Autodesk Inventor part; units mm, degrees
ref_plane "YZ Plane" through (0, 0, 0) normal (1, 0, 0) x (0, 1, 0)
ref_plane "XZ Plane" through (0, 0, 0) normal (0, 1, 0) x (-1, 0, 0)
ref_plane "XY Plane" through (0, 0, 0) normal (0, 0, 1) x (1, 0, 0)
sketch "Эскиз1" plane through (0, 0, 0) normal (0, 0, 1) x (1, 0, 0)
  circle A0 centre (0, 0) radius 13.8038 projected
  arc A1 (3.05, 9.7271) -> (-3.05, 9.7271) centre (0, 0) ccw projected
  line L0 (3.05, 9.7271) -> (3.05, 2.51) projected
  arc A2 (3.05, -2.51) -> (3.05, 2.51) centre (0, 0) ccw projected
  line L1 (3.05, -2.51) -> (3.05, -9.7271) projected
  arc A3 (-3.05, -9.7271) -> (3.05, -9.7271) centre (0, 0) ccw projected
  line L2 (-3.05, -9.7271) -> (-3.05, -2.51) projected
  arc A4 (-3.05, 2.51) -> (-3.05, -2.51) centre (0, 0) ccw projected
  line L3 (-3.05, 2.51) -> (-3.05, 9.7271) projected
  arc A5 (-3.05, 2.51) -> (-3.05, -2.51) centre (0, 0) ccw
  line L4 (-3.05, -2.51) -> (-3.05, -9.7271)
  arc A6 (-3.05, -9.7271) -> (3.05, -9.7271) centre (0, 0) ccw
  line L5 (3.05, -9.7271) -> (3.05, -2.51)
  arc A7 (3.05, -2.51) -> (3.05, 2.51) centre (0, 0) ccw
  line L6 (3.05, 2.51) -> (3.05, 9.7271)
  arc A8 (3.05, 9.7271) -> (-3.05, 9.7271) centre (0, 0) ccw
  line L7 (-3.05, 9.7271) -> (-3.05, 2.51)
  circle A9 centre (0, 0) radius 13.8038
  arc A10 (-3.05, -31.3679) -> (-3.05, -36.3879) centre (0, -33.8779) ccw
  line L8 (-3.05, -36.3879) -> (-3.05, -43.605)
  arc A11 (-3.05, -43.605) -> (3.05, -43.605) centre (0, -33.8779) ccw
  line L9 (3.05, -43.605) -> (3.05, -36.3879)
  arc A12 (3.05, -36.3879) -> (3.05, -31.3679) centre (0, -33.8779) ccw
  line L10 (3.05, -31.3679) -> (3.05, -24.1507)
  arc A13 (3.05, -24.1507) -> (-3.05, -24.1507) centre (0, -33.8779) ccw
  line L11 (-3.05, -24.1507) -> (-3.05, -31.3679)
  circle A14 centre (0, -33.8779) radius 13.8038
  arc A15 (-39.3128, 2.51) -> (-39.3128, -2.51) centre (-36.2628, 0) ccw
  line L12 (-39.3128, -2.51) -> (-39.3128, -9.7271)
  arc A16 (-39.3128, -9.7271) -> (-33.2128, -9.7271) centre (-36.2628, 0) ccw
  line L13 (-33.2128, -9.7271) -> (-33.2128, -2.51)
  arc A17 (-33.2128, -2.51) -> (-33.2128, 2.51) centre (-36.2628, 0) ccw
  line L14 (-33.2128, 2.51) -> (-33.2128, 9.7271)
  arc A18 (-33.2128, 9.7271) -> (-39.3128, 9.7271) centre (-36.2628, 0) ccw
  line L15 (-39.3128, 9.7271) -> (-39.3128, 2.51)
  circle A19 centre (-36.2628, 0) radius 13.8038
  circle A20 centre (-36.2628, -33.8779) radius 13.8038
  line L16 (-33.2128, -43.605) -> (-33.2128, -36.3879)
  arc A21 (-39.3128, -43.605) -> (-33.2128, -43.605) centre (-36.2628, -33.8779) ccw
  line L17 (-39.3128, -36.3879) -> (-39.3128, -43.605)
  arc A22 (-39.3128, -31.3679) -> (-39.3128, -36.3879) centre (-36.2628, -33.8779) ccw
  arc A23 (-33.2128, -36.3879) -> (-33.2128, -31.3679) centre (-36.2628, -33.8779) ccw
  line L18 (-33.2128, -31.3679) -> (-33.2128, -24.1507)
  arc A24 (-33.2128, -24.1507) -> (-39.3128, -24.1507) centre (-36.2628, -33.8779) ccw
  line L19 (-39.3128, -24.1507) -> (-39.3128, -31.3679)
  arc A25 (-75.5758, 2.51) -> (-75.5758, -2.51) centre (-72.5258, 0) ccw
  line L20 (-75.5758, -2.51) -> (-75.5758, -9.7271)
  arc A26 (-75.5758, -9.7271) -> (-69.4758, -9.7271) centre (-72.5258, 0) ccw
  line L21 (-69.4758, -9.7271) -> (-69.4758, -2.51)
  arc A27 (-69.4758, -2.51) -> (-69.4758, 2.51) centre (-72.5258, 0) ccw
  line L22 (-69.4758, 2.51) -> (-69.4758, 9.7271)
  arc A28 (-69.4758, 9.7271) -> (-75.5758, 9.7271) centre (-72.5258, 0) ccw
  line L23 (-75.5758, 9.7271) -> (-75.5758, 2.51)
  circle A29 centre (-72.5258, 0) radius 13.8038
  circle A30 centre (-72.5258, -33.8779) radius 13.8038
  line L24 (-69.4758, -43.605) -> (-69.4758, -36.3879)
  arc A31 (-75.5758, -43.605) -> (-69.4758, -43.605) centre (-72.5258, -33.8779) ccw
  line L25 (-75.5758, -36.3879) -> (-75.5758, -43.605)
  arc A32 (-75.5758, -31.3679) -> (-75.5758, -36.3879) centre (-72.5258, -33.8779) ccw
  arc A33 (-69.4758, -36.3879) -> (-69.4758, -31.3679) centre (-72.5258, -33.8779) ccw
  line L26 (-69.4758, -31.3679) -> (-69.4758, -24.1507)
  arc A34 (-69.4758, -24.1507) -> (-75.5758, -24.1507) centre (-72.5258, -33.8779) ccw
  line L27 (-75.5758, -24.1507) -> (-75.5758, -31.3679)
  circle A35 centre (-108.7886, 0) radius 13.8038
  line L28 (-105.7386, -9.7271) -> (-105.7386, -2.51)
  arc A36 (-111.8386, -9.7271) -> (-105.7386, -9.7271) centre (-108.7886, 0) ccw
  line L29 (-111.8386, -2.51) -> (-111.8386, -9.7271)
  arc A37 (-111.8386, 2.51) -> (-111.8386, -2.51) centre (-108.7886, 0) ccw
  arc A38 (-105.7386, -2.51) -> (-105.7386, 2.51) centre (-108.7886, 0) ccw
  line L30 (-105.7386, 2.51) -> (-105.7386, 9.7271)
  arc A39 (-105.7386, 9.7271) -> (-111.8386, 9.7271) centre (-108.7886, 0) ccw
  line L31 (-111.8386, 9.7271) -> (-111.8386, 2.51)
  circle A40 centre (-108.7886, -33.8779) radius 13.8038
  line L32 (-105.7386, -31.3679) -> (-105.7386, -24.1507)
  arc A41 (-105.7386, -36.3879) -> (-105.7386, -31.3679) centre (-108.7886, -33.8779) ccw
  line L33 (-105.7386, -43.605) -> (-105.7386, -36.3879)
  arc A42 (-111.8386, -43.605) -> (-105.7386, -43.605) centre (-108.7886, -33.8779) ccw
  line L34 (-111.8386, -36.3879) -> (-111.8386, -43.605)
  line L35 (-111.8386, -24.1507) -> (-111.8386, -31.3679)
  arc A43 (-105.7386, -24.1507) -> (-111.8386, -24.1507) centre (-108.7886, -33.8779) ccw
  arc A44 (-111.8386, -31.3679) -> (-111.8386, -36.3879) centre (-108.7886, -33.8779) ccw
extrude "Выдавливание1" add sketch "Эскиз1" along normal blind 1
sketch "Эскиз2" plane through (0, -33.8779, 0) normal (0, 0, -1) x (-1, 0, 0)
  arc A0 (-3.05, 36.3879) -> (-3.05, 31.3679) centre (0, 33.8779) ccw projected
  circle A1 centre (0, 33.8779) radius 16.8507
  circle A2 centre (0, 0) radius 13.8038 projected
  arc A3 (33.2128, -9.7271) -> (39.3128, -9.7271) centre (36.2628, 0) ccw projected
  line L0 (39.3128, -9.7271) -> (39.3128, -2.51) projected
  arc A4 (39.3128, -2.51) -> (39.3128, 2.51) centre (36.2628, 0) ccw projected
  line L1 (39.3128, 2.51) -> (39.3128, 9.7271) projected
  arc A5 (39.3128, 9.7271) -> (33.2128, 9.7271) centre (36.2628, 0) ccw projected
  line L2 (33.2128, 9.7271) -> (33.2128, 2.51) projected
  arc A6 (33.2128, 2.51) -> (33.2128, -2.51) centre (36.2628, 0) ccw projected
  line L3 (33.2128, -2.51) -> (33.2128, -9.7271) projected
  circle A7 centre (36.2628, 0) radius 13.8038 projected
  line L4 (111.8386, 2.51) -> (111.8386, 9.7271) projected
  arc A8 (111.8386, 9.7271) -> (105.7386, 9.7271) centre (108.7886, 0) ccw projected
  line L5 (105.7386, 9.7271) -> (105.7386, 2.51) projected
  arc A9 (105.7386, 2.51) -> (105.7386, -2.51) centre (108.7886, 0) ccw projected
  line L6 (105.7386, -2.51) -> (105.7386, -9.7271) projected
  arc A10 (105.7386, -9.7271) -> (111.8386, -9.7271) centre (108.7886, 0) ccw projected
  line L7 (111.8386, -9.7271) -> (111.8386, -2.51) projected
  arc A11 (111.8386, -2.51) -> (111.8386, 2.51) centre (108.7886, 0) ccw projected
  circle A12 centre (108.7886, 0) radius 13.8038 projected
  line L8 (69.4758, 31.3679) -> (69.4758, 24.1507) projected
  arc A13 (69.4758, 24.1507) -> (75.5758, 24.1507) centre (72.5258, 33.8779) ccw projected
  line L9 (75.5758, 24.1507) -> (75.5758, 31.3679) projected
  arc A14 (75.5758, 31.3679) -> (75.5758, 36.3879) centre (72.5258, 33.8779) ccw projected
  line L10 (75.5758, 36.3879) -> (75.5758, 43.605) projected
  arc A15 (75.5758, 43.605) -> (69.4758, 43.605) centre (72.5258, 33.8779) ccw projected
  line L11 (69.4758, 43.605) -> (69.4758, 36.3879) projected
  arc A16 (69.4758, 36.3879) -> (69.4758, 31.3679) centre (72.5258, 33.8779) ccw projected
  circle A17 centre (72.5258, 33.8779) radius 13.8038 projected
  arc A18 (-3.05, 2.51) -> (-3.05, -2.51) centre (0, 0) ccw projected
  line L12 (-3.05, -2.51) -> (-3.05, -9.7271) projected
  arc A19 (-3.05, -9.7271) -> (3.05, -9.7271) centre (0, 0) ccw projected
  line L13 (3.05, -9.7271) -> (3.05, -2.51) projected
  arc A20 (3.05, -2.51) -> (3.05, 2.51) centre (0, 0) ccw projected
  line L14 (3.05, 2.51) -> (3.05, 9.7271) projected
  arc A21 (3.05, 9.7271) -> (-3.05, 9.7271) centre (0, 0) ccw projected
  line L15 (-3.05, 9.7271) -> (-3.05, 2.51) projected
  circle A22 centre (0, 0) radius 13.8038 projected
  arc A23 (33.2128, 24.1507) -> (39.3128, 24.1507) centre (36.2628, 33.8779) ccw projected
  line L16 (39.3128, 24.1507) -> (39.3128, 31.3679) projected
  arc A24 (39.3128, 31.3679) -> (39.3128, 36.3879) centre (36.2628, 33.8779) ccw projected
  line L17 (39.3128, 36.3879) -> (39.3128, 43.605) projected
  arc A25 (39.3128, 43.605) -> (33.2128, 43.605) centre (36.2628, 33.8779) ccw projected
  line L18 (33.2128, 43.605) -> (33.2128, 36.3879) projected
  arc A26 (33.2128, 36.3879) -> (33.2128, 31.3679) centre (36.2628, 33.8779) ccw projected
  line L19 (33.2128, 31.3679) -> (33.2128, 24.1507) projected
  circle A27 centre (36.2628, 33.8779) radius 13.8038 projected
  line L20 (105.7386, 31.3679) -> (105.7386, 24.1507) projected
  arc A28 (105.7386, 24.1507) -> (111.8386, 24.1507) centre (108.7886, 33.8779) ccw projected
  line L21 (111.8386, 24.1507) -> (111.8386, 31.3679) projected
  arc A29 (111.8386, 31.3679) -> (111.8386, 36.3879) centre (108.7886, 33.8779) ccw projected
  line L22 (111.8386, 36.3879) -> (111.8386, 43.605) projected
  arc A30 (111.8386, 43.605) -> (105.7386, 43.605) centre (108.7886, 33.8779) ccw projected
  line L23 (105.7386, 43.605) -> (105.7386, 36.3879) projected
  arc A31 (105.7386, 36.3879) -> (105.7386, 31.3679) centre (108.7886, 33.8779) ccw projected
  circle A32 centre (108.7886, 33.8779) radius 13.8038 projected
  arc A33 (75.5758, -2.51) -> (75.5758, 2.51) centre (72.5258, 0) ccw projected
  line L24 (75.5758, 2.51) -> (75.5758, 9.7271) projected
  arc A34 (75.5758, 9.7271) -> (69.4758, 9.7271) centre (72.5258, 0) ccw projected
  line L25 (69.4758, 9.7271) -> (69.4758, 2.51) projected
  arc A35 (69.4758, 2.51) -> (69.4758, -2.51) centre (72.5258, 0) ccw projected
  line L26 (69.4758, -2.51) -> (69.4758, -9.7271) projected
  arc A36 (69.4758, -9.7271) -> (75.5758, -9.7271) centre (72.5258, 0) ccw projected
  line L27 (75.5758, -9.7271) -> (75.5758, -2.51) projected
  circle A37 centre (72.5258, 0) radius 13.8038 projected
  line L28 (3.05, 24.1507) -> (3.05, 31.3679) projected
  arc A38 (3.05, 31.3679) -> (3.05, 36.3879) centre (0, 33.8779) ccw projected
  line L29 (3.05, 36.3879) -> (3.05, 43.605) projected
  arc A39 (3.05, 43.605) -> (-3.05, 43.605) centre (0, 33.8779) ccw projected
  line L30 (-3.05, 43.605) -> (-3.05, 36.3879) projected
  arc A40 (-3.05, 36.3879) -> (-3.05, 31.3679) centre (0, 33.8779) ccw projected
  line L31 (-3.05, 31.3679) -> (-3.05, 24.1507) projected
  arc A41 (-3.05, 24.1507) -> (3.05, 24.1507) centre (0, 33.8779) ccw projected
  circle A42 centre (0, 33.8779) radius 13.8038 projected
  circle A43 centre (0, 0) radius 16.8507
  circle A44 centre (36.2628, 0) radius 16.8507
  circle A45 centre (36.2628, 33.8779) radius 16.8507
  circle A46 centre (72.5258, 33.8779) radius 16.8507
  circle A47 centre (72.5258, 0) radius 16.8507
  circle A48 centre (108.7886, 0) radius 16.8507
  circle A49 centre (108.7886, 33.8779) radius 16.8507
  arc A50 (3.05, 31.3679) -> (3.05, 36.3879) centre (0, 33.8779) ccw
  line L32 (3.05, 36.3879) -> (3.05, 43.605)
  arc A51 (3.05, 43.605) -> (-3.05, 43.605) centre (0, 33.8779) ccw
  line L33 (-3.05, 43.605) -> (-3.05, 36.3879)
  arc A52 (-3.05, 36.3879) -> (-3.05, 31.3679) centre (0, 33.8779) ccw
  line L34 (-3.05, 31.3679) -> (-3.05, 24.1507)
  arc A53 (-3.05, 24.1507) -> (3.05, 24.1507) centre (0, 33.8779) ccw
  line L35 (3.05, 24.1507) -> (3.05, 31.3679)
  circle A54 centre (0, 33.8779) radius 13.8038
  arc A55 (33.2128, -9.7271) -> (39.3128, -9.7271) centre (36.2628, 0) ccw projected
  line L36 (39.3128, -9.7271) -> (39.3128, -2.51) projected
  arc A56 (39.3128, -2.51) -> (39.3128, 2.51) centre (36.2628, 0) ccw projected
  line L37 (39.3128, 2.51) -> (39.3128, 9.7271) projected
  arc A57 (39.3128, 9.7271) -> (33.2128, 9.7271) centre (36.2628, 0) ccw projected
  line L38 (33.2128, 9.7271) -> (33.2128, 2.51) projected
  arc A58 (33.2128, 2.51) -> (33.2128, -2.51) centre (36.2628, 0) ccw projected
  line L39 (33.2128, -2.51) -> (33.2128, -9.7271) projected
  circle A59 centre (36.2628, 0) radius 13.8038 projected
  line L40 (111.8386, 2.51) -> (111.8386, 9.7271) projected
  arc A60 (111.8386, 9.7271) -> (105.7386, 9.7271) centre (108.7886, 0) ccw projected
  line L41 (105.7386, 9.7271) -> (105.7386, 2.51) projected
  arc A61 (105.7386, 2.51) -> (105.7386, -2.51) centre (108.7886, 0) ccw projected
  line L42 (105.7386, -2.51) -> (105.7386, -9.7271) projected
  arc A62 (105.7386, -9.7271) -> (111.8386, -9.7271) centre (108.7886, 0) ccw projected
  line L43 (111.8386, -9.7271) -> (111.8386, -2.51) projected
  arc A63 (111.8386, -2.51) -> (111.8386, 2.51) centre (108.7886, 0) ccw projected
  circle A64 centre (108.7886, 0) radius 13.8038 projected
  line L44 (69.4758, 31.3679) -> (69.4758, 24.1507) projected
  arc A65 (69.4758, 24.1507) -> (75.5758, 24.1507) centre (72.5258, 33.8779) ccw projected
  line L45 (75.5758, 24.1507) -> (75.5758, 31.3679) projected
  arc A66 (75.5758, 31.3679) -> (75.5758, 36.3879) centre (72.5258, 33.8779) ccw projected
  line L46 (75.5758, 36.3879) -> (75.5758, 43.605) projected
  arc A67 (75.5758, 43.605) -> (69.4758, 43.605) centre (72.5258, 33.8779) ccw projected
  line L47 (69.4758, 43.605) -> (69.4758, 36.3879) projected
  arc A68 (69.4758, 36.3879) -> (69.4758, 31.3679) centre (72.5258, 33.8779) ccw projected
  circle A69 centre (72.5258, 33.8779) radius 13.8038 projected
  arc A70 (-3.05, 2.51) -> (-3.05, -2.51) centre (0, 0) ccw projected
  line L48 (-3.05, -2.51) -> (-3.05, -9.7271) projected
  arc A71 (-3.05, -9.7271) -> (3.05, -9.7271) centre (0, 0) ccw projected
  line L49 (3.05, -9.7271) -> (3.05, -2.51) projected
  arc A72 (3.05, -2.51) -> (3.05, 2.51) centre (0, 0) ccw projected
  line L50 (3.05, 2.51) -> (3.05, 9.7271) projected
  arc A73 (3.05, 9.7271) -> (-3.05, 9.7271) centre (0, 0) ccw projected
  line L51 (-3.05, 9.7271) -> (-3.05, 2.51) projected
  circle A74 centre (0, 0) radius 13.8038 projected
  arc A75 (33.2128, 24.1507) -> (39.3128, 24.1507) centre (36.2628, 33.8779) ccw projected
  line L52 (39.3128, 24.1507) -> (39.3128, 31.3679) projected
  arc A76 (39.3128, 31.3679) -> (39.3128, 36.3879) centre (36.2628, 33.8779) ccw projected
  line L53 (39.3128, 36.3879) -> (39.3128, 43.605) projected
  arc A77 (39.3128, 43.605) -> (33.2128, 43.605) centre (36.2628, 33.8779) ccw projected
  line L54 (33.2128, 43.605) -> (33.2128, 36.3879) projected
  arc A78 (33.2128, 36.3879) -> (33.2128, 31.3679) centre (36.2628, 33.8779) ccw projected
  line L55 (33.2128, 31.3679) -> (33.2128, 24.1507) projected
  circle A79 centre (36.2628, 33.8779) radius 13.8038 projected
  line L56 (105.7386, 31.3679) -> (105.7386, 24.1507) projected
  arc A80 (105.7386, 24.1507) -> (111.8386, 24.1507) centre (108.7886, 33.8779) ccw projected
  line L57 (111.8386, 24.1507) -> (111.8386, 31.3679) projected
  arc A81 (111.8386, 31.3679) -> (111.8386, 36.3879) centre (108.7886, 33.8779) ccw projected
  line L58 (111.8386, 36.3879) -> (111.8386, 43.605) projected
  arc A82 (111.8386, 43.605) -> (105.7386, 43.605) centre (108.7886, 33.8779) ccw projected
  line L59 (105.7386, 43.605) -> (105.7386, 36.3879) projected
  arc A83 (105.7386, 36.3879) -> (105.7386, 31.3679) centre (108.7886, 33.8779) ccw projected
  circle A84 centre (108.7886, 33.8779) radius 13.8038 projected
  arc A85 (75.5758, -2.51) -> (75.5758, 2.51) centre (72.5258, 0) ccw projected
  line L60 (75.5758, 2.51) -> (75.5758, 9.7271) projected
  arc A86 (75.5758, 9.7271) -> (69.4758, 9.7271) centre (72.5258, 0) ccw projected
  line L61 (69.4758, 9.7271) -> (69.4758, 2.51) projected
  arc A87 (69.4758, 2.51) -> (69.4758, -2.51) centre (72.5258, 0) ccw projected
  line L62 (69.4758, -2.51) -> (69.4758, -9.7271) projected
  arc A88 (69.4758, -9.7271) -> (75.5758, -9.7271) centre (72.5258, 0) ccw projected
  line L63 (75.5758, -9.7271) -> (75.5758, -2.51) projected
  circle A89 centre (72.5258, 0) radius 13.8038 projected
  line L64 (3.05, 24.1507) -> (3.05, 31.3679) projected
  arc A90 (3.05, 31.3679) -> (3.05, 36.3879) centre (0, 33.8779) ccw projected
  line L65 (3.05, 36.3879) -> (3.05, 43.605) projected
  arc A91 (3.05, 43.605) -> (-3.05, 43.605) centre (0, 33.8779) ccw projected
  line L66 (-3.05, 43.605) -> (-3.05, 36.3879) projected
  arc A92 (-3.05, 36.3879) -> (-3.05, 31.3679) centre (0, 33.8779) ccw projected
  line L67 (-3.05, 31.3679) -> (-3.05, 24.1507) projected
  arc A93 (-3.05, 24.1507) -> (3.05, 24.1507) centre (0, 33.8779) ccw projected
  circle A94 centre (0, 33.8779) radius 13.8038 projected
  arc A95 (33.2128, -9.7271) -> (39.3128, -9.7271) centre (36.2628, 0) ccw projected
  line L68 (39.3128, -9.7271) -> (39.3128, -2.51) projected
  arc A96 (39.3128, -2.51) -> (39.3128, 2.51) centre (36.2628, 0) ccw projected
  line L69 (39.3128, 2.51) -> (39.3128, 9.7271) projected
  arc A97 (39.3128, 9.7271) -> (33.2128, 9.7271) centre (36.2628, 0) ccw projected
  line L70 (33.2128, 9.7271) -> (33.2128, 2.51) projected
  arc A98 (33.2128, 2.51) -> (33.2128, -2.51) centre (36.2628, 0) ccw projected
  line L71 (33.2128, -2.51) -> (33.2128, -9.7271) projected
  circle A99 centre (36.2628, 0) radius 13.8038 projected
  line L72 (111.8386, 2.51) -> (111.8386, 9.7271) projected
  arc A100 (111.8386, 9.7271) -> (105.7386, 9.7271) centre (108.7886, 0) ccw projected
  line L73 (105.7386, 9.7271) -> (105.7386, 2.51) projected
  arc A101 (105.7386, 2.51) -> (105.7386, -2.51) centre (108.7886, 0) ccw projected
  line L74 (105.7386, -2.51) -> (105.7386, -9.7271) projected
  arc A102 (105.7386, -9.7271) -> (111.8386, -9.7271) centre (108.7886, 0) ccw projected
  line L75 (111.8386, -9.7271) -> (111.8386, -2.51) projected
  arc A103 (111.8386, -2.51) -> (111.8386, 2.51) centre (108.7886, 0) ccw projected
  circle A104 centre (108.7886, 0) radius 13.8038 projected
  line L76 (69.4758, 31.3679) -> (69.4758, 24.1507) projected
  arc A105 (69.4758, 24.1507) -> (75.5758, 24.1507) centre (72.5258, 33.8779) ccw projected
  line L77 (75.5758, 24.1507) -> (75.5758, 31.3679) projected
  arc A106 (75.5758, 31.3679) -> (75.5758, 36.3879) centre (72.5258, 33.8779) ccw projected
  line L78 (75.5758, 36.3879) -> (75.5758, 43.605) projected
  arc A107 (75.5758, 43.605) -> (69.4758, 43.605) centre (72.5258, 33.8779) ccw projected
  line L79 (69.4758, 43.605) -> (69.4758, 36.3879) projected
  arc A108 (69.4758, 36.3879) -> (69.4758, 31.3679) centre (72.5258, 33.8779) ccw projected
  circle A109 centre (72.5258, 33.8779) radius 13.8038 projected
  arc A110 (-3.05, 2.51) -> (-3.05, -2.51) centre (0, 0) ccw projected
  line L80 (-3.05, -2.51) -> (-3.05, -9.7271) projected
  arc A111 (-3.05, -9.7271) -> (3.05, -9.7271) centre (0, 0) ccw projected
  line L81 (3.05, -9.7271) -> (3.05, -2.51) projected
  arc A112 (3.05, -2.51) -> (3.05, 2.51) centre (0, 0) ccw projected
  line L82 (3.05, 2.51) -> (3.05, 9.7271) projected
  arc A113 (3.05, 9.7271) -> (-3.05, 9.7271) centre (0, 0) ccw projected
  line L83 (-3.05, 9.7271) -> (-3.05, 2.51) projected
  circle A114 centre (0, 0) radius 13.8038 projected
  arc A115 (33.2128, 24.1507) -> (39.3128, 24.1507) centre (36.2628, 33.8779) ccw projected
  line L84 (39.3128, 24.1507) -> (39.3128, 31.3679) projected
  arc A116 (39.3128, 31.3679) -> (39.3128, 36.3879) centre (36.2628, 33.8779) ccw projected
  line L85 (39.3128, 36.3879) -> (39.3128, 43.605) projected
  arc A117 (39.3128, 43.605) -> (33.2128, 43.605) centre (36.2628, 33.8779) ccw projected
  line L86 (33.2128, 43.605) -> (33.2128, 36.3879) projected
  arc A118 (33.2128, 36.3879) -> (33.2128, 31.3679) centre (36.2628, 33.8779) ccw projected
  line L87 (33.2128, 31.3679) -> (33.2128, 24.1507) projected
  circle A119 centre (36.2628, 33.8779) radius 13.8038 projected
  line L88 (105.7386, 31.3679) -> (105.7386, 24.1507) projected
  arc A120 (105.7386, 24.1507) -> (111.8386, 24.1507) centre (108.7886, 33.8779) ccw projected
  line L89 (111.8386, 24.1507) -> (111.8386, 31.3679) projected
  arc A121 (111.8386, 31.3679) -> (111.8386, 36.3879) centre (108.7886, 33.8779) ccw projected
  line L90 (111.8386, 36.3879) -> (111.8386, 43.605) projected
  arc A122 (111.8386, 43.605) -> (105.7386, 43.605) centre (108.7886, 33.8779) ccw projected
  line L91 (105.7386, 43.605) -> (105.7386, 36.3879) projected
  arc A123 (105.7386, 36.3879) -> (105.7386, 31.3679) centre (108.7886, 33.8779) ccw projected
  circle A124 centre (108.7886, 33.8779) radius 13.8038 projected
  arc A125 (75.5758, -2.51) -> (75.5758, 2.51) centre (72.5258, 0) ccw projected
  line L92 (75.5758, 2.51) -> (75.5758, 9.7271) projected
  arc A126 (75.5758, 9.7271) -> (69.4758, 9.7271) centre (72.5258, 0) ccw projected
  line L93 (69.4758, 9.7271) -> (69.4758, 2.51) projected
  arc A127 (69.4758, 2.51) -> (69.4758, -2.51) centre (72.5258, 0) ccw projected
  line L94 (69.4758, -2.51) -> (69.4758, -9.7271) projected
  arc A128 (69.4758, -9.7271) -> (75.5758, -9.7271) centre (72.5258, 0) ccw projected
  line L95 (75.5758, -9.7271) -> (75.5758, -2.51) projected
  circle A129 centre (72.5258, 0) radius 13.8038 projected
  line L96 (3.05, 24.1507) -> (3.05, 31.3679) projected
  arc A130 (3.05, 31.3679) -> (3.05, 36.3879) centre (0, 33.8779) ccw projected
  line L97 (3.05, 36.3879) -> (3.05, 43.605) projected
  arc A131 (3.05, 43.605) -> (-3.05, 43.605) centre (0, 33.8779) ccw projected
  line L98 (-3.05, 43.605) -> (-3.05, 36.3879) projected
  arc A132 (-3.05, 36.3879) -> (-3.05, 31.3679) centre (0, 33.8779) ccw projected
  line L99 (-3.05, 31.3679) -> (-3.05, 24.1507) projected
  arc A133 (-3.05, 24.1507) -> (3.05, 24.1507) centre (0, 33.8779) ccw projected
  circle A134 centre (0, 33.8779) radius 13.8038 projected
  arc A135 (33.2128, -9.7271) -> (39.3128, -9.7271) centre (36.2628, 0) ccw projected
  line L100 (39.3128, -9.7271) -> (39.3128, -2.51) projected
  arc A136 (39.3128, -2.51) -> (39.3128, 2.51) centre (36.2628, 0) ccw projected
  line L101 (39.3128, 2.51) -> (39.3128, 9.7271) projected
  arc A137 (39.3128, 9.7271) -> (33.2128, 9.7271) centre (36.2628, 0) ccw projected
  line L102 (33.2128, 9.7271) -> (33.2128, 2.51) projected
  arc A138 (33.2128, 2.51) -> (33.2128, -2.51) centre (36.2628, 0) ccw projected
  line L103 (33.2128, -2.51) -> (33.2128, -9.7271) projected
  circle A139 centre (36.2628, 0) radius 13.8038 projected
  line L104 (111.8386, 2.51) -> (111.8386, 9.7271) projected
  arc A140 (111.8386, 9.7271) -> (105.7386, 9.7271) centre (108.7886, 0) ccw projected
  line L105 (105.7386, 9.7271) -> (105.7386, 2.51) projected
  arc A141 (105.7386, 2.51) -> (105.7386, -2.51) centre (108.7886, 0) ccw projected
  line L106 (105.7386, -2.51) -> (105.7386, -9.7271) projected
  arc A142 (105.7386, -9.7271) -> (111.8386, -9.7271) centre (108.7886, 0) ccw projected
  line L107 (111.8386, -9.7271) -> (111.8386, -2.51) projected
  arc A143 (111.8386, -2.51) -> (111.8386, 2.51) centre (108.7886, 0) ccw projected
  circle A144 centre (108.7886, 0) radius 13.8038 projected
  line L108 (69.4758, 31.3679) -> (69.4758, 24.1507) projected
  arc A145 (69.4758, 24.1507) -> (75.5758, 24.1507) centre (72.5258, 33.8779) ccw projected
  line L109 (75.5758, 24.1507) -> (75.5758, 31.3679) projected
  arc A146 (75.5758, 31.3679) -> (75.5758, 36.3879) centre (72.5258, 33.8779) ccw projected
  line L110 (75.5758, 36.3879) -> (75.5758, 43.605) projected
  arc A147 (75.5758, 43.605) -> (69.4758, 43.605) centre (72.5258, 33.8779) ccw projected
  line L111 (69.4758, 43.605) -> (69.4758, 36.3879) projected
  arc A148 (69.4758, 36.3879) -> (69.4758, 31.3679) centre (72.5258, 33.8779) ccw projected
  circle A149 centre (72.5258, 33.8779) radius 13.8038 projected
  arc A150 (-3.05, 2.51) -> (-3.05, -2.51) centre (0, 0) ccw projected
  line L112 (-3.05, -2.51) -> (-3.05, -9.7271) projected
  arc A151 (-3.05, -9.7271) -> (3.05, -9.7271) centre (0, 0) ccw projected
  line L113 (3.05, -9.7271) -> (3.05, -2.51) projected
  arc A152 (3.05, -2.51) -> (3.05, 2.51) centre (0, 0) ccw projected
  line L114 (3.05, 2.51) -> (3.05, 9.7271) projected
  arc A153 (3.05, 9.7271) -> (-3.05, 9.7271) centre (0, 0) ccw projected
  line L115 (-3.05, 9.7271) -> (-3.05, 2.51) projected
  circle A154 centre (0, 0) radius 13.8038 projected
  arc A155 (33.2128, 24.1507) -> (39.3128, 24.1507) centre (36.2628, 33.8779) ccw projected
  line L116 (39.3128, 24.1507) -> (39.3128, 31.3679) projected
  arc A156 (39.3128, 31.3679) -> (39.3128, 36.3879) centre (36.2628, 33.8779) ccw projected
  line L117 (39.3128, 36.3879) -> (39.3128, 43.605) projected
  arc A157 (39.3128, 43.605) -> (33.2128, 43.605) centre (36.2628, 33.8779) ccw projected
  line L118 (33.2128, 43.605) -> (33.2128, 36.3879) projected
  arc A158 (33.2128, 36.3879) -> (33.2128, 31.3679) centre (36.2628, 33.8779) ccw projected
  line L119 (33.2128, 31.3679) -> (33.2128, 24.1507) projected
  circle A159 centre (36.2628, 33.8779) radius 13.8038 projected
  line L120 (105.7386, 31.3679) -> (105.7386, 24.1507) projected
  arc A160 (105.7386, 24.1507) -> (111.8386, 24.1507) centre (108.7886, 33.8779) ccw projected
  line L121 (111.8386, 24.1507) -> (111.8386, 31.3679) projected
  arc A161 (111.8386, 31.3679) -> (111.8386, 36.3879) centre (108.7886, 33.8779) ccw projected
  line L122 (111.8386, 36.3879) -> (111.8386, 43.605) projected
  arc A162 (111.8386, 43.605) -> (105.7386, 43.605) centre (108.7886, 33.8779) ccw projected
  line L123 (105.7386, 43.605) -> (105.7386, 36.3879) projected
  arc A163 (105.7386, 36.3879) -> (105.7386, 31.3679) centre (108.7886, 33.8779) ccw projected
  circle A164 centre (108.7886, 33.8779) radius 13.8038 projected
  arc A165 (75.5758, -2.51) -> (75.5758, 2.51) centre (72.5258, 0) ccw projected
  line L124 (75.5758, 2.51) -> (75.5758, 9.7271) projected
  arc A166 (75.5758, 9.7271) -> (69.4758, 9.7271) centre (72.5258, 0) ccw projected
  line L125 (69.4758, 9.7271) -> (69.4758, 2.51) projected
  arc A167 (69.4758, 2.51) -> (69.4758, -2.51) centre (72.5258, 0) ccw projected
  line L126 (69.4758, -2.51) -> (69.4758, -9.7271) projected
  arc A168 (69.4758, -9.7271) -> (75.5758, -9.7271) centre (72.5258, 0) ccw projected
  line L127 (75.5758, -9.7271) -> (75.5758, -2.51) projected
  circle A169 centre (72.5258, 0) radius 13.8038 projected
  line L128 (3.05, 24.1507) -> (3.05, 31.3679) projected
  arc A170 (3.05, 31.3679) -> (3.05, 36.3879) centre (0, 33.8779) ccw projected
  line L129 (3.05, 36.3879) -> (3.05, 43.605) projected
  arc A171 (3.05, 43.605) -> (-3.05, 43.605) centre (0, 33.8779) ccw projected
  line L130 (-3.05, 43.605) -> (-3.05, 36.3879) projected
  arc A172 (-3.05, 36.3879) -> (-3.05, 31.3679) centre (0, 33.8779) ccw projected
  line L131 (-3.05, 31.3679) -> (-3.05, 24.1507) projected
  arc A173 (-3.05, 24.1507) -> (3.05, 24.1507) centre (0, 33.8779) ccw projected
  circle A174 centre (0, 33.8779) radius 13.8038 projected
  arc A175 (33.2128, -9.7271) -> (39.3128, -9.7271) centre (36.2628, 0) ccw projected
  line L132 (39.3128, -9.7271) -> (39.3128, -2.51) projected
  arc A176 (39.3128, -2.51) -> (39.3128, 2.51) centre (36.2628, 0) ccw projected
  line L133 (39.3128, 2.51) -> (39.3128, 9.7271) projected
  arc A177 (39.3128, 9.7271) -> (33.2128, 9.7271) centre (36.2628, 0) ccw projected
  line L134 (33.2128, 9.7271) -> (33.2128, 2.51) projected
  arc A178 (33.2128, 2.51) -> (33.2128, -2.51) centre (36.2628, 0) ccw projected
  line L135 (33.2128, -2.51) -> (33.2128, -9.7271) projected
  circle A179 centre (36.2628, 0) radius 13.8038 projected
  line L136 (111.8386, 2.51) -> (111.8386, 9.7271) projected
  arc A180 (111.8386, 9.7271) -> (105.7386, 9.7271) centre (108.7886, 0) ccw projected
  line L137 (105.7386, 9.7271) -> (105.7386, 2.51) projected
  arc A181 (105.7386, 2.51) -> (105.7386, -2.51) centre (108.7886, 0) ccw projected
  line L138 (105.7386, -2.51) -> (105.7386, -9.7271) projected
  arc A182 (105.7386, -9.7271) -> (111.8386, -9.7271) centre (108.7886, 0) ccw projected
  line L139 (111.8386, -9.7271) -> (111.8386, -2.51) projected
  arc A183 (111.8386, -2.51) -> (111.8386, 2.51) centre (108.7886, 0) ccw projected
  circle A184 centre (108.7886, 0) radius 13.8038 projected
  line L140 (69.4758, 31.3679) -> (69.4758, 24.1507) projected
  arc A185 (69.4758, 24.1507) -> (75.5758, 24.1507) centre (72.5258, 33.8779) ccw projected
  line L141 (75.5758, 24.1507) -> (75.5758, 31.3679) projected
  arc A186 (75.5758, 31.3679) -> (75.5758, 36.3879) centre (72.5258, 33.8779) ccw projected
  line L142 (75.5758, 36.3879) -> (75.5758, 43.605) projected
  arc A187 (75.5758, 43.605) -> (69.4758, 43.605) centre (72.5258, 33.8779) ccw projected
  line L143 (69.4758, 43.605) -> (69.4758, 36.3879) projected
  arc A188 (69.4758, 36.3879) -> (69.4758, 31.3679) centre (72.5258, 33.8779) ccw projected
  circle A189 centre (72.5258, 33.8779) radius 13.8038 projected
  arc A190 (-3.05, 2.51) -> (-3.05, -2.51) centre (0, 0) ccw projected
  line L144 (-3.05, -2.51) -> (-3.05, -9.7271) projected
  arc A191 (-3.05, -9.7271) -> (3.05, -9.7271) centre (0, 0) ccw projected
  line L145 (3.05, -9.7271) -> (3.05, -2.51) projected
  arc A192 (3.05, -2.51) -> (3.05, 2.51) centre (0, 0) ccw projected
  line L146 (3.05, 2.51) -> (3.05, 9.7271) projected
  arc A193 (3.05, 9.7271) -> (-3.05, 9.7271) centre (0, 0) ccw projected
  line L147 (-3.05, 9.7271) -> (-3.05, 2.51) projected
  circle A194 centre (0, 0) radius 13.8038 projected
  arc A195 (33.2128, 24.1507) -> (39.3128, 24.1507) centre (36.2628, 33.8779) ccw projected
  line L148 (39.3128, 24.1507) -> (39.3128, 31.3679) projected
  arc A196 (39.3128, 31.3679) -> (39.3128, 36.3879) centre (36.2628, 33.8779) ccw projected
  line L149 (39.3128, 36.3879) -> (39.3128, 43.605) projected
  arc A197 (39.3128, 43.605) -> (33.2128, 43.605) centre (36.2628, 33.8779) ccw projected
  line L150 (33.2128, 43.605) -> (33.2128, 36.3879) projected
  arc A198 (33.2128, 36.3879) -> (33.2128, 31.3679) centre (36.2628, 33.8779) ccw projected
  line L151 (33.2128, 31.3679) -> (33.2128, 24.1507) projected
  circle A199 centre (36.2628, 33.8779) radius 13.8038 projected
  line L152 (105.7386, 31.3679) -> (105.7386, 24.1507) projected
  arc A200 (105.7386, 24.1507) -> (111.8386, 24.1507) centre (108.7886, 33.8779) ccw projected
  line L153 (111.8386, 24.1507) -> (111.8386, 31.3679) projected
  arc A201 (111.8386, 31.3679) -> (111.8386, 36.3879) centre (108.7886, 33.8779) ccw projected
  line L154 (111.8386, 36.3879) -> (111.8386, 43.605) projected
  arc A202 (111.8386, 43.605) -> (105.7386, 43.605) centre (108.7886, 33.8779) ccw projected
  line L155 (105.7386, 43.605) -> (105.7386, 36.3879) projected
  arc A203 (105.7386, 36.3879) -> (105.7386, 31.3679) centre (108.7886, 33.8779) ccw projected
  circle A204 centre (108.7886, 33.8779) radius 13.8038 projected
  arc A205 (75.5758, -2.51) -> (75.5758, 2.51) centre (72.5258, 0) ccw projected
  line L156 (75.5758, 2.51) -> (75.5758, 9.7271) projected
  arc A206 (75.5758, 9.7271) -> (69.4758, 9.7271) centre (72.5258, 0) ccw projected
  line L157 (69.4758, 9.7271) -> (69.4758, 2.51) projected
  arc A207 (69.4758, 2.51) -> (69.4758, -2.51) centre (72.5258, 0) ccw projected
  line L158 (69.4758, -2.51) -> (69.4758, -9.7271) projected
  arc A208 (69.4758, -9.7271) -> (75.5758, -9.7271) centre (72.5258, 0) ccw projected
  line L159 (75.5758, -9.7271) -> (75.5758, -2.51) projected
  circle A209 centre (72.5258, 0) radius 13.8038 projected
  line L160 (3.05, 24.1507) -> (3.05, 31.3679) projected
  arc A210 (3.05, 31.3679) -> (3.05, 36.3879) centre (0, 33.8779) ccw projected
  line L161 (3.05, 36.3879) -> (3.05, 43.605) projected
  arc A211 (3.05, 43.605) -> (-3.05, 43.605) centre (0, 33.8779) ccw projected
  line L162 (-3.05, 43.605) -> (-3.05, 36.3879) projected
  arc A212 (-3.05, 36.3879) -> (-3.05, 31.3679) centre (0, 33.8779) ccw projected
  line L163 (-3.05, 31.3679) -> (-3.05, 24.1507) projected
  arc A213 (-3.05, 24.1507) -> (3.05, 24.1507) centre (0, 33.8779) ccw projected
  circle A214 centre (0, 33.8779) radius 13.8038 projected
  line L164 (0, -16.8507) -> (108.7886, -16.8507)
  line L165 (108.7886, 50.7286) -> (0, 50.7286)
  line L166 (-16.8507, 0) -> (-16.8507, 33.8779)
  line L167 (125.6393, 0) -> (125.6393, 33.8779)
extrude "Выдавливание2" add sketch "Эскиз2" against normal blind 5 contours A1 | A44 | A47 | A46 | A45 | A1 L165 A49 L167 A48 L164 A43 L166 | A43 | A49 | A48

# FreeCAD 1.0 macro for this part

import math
import FreeCAD as App
import Part
import Sketcher
Q = App.Units.Quantity

doc = App.newDocument("Part")
params = doc.addObject("Spreadsheet::Sheet", "Params")
for row, (alias, value) in enumerate([
    ("sketch1_radius", "3.95 mm"),
    ("pad1_length", "1 mm"),
    ("pad2_length", "5 mm"),
], start=1):
    params.set(f"A{row}", alias)
    params.set(f"B{row}", "=" + value)
    params.setAlias(f"B{row}", alias)

body = doc.addObject("PartDesign::Body", "Body")
body.AllowCompound = True

# Sketch on XY plane
sketch1 = doc.addObject("Sketcher::SketchObject", "Sketch")
body.addObject(sketch1)
sketch1.AttachmentSupport = (doc.XY_Plane, [""])
sketch1.MapMode = "FlatFace"
sketch1.addGeometry([
    Part.Circle(App.Vector(0, 0, 0), App.Vector(0, 0, 1), 13.8038),  # 0
    Part.ArcOfCircle(Part.Circle(App.Vector(0, 0, 0), App.Vector(0, 0, 1), 10.194066), math.radians(72.59082), math.radians(107.40918)),  # 1
    Part.LineSegment(App.Vector(3.05, 9.7271, 0), App.Vector(3.05, 2.51, 0)),  # 2
    Part.ArcOfCircle(Part.Circle(App.Vector(0, 0, 0), App.Vector(0, 0, 1), 3.950013), math.radians(-39.4527), math.radians(39.4527)),  # 3
    Part.LineSegment(App.Vector(3.05, -2.51, 0), App.Vector(3.05, -9.7271, 0)),  # 4
    Part.ArcOfCircle(Part.Circle(App.Vector(0, 0, 0), App.Vector(0, 0, 1), 10.194066), math.radians(-107.40918), math.radians(-72.59082)),  # 5
    Part.LineSegment(App.Vector(-3.05, -9.7271, 0), App.Vector(-3.05, -2.51, 0)),  # 6
    Part.ArcOfCircle(Part.Circle(App.Vector(0, 0, 0), App.Vector(0, 0, 1), 3.950013), math.radians(140.5473), math.radians(219.4527)),  # 7
    Part.LineSegment(App.Vector(-3.05, 2.51, 0), App.Vector(-3.05, 9.7271, 0)),  # 8
    Part.Circle(App.Vector(0, -33.8779, 0), App.Vector(0, 0, 1), 13.8038),  # 9
    Part.ArcOfCircle(Part.Circle(App.Vector(0, -33.8779, 0), App.Vector(0, 0, 1), 3.950013), math.radians(140.5473), math.radians(219.4527)),  # 10
    Part.LineSegment(App.Vector(-3.05, -31.3679, 0), App.Vector(-3.05, -24.1507, 0)),  # 11
    Part.ArcOfCircle(Part.Circle(App.Vector(0, -33.8779, 0), App.Vector(0, 0, 1), 10.194161), math.radians(72.590988), math.radians(107.409012)),  # 12
    Part.LineSegment(App.Vector(3.05, -24.1507, 0), App.Vector(3.05, -31.3679, 0)),  # 13
    Part.ArcOfCircle(Part.Circle(App.Vector(0, -33.8779, 0), App.Vector(0, 0, 1), 3.950013), math.radians(-39.4527), math.radians(39.4527)),  # 14
    Part.LineSegment(App.Vector(3.05, -36.3879, 0), App.Vector(3.05, -43.605, 0)),  # 15
    Part.ArcOfCircle(Part.Circle(App.Vector(0, -33.8779, 0), App.Vector(0, 0, 1), 10.194066), math.radians(-107.40918), math.radians(-72.59082)),  # 16
    Part.LineSegment(App.Vector(-3.05, -43.605, 0), App.Vector(-3.05, -36.3879, 0)),  # 17
    Part.Circle(App.Vector(-36.2628, 0, 0), App.Vector(0, 0, 1), 13.8038),  # 18
    Part.ArcOfCircle(Part.Circle(App.Vector(-36.2628, 0, 0), App.Vector(0, 0, 1), 3.950013), math.radians(140.5473), math.radians(219.4527)),  # 19
    Part.LineSegment(App.Vector(-39.3128, 2.51, 0), App.Vector(-39.3128, 9.7271, 0)),  # 20
    Part.ArcOfCircle(Part.Circle(App.Vector(-36.2628, 0, 0), App.Vector(0, 0, 1), 10.194066), math.radians(72.59082), math.radians(107.40918)),  # 21
    Part.LineSegment(App.Vector(-33.2128, 9.7271, 0), App.Vector(-33.2128, 2.51, 0)),  # 22
    Part.ArcOfCircle(Part.Circle(App.Vector(-36.2628, 0, 0), App.Vector(0, 0, 1), 3.950013), math.radians(-39.4527), math.radians(39.4527)),  # 23
    Part.LineSegment(App.Vector(-33.2128, -2.51, 0), App.Vector(-33.2128, -9.7271, 0)),  # 24
    Part.ArcOfCircle(Part.Circle(App.Vector(-36.2628, 0, 0), App.Vector(0, 0, 1), 10.194066), math.radians(-107.40918), math.radians(-72.59082)),  # 25
    Part.LineSegment(App.Vector(-39.3128, -9.7271, 0), App.Vector(-39.3128, -2.51, 0)),  # 26
    Part.Circle(App.Vector(-36.2628, -33.8779, 0), App.Vector(0, 0, 1), 13.8038),  # 27
    Part.LineSegment(App.Vector(-33.2128, -36.3879, 0), App.Vector(-33.2128, -43.605, 0)),  # 28
    Part.ArcOfCircle(Part.Circle(App.Vector(-36.2628, -33.8779, 0), App.Vector(0, 0, 1), 10.194066), math.radians(-107.40918), math.radians(-72.59082)),  # 29
    Part.LineSegment(App.Vector(-39.3128, -43.605, 0), App.Vector(-39.3128, -36.3879, 0)),  # 30
    Part.ArcOfCircle(Part.Circle(App.Vector(-36.2628, -33.8779, 0), App.Vector(0, 0, 1), 3.950013), math.radians(140.5473), math.radians(219.4527)),  # 31
    Part.LineSegment(App.Vector(-39.3128, -31.3679, 0), App.Vector(-39.3128, -24.1507, 0)),  # 32
    Part.ArcOfCircle(Part.Circle(App.Vector(-36.2628, -33.8779, 0), App.Vector(0, 0, 1), 10.194161), math.radians(72.590988), math.radians(107.409012)),  # 33
    Part.LineSegment(App.Vector(-33.2128, -24.1507, 0), App.Vector(-33.2128, -31.3679, 0)),  # 34
    Part.ArcOfCircle(Part.Circle(App.Vector(-36.2628, -33.8779, 0), App.Vector(0, 0, 1), 3.950013), math.radians(-39.4527), math.radians(39.4527)),  # 35
    Part.Circle(App.Vector(-72.5258, 0, 0), App.Vector(0, 0, 1), 13.8038),  # 36
    Part.ArcOfCircle(Part.Circle(App.Vector(-72.5258, 0, 0), App.Vector(0, 0, 1), 3.950013), math.radians(140.5473), math.radians(219.4527)),  # 37
    Part.LineSegment(App.Vector(-75.5758, 2.51, 0), App.Vector(-75.5758, 9.7271, 0)),  # 38
    Part.ArcOfCircle(Part.Circle(App.Vector(-72.5258, 0, 0), App.Vector(0, 0, 1), 10.194066), math.radians(72.59082), math.radians(107.40918)),  # 39
    Part.LineSegment(App.Vector(-69.4758, 9.7271, 0), App.Vector(-69.4758, 2.51, 0)),  # 40
    Part.ArcOfCircle(Part.Circle(App.Vector(-72.5258, 0, 0), App.Vector(0, 0, 1), 3.950013), math.radians(-39.4527), math.radians(39.4527)),  # 41
    Part.LineSegment(App.Vector(-69.4758, -2.51, 0), App.Vector(-69.4758, -9.7271, 0)),  # 42
    Part.ArcOfCircle(Part.Circle(App.Vector(-72.5258, 0, 0), App.Vector(0, 0, 1), 10.194066), math.radians(-107.40918), math.radians(-72.59082)),  # 43
    Part.LineSegment(App.Vector(-75.5758, -9.7271, 0), App.Vector(-75.5758, -2.51, 0)),  # 44
    Part.Circle(App.Vector(-72.5258, -33.8779, 0), App.Vector(0, 0, 1), 13.8038),  # 45
    Part.LineSegment(App.Vector(-69.4758, -36.3879, 0), App.Vector(-69.4758, -43.605, 0)),  # 46
    Part.ArcOfCircle(Part.Circle(App.Vector(-72.5258, -33.8779, 0), App.Vector(0, 0, 1), 10.194066), math.radians(-107.40918), math.radians(-72.59082)),  # 47
    Part.LineSegment(App.Vector(-75.5758, -43.605, 0), App.Vector(-75.5758, -36.3879, 0)),  # 48
    Part.ArcOfCircle(Part.Circle(App.Vector(-72.5258, -33.8779, 0), App.Vector(0, 0, 1), 3.950013), math.radians(140.5473), math.radians(219.4527)),  # 49
    Part.LineSegment(App.Vector(-75.5758, -31.3679, 0), App.Vector(-75.5758, -24.1507, 0)),  # 50
    Part.ArcOfCircle(Part.Circle(App.Vector(-72.5258, -33.8779, 0), App.Vector(0, 0, 1), 10.194161), math.radians(72.590988), math.radians(107.409012)),  # 51
    Part.LineSegment(App.Vector(-69.4758, -24.1507, 0), App.Vector(-69.4758, -31.3679, 0)),  # 52
    Part.ArcOfCircle(Part.Circle(App.Vector(-72.5258, -33.8779, 0), App.Vector(0, 0, 1), 3.950013), math.radians(-39.4527), math.radians(39.4527)),  # 53
    Part.Circle(App.Vector(-108.7886, 0, 0), App.Vector(0, 0, 1), 13.8038),  # 54
    Part.LineSegment(App.Vector(-105.7386, -2.51, 0), App.Vector(-105.7386, -9.7271, 0)),  # 55
    Part.ArcOfCircle(Part.Circle(App.Vector(-108.7886, 0, 0), App.Vector(0, 0, 1), 10.194066), math.radians(-107.40918), math.radians(-72.59082)),  # 56
    Part.LineSegment(App.Vector(-111.8386, -9.7271, 0), App.Vector(-111.8386, -2.51, 0)),  # 57
    Part.ArcOfCircle(Part.Circle(App.Vector(-108.7886, 0, 0), App.Vector(0, 0, 1), 3.950013), math.radians(140.5473), math.radians(219.4527)),  # 58
    Part.LineSegment(App.Vector(-111.8386, 2.51, 0), App.Vector(-111.8386, 9.7271, 0)),  # 59
    Part.ArcOfCircle(Part.Circle(App.Vector(-108.7886, 0, 0), App.Vector(0, 0, 1), 10.194066), math.radians(72.59082), math.radians(107.40918)),  # 60
    Part.LineSegment(App.Vector(-105.7386, 9.7271, 0), App.Vector(-105.7386, 2.51, 0)),  # 61
    Part.ArcOfCircle(Part.Circle(App.Vector(-108.7886, 0, 0), App.Vector(0, 0, 1), 3.950013), math.radians(-39.4527), math.radians(39.4527)),  # 62
    Part.Circle(App.Vector(-108.7886, -33.8779, 0), App.Vector(0, 0, 1), 13.8038),  # 63
    Part.LineSegment(App.Vector(-105.7386, -24.1507, 0), App.Vector(-105.7386, -31.3679, 0)),  # 64
    Part.ArcOfCircle(Part.Circle(App.Vector(-108.7886, -33.8779, 0), App.Vector(0, 0, 1), 3.950013), math.radians(-39.4527), math.radians(39.4527)),  # 65
    Part.LineSegment(App.Vector(-105.7386, -36.3879, 0), App.Vector(-105.7386, -43.605, 0)),  # 66
    Part.ArcOfCircle(Part.Circle(App.Vector(-108.7886, -33.8779, 0), App.Vector(0, 0, 1), 10.194066), math.radians(-107.40918), math.radians(-72.59082)),  # 67
    Part.LineSegment(App.Vector(-111.8386, -43.605, 0), App.Vector(-111.8386, -36.3879, 0)),  # 68
    Part.ArcOfCircle(Part.Circle(App.Vector(-108.7886, -33.8779, 0), App.Vector(0, 0, 1), 3.950013), math.radians(140.5473), math.radians(219.4527)),  # 69
    Part.LineSegment(App.Vector(-111.8386, -31.3679, 0), App.Vector(-111.8386, -24.1507, 0)),  # 70
    Part.ArcOfCircle(Part.Circle(App.Vector(-108.7886, -33.8779, 0), App.Vector(0, 0, 1), 10.194161), math.radians(72.590988), math.radians(107.409012)),  # 71
], False)
sketch1.addConstraint([
    Sketcher.Constraint("Coincident", 1, 1, 2, 1),
    Sketcher.Constraint("Coincident", 2, 2, 3, 2),
    Sketcher.Constraint("Coincident", 3, 1, 4, 1),
    Sketcher.Constraint("Coincident", 4, 2, 5, 2),
    Sketcher.Constraint("Coincident", 5, 1, 6, 1),
    Sketcher.Constraint("Coincident", 6, 2, 7, 2),
    Sketcher.Constraint("Coincident", 7, 1, 8, 1),
    Sketcher.Constraint("Coincident", 8, 2, 1, 2),
    Sketcher.Constraint("Coincident", 10, 1, 11, 1),
    Sketcher.Constraint("Coincident", 11, 2, 12, 2),
    Sketcher.Constraint("Coincident", 12, 1, 13, 1),
    Sketcher.Constraint("Coincident", 13, 2, 14, 2),
    Sketcher.Constraint("Coincident", 14, 1, 15, 1),
    Sketcher.Constraint("Coincident", 15, 2, 16, 2),
    Sketcher.Constraint("Coincident", 16, 1, 17, 1),
    Sketcher.Constraint("Coincident", 17, 2, 10, 2),
    Sketcher.Constraint("Coincident", 19, 1, 20, 1),
    Sketcher.Constraint("Coincident", 20, 2, 21, 2),
    Sketcher.Constraint("Coincident", 21, 1, 22, 1),
    Sketcher.Constraint("Coincident", 22, 2, 23, 2),
    Sketcher.Constraint("Coincident", 23, 1, 24, 1),
    Sketcher.Constraint("Coincident", 24, 2, 25, 2),
    Sketcher.Constraint("Coincident", 25, 1, 26, 1),
    Sketcher.Constraint("Coincident", 26, 2, 19, 2),
    Sketcher.Constraint("Coincident", 28, 2, 29, 2),
    Sketcher.Constraint("Coincident", 29, 1, 30, 1),
    Sketcher.Constraint("Coincident", 30, 2, 31, 2),
    Sketcher.Constraint("Coincident", 31, 1, 32, 1),
    Sketcher.Constraint("Coincident", 32, 2, 33, 2),
    Sketcher.Constraint("Coincident", 33, 1, 34, 1),
    Sketcher.Constraint("Coincident", 34, 2, 35, 2),
    Sketcher.Constraint("Coincident", 35, 1, 28, 1),
    Sketcher.Constraint("Coincident", 37, 1, 38, 1),
    Sketcher.Constraint("Coincident", 38, 2, 39, 2),
    Sketcher.Constraint("Coincident", 39, 1, 40, 1),
    Sketcher.Constraint("Coincident", 40, 2, 41, 2),
    Sketcher.Constraint("Coincident", 41, 1, 42, 1),
    Sketcher.Constraint("Coincident", 42, 2, 43, 2),
    Sketcher.Constraint("Coincident", 43, 1, 44, 1),
    Sketcher.Constraint("Coincident", 44, 2, 37, 2),
    Sketcher.Constraint("Coincident", 46, 2, 47, 2),
    Sketcher.Constraint("Coincident", 47, 1, 48, 1),
    Sketcher.Constraint("Coincident", 48, 2, 49, 2),
    Sketcher.Constraint("Coincident", 49, 1, 50, 1),
    Sketcher.Constraint("Coincident", 50, 2, 51, 2),
    Sketcher.Constraint("Coincident", 51, 1, 52, 1),
    Sketcher.Constraint("Coincident", 52, 2, 53, 2),
    Sketcher.Constraint("Coincident", 53, 1, 46, 1),
    Sketcher.Constraint("Coincident", 55, 2, 56, 2),
    Sketcher.Constraint("Coincident", 56, 1, 57, 1),
    Sketcher.Constraint("Coincident", 57, 2, 58, 2),
    Sketcher.Constraint("Coincident", 58, 1, 59, 1),
    Sketcher.Constraint("Coincident", 59, 2, 60, 2),
    Sketcher.Constraint("Coincident", 60, 1, 61, 1),
    Sketcher.Constraint("Coincident", 61, 2, 62, 2),
    Sketcher.Constraint("Coincident", 62, 1, 55, 1),
    Sketcher.Constraint("Coincident", 64, 2, 65, 2),
    Sketcher.Constraint("Coincident", 65, 1, 66, 1),
    Sketcher.Constraint("Coincident", 66, 2, 67, 2),
    Sketcher.Constraint("Coincident", 67, 1, 68, 1),
    Sketcher.Constraint("Coincident", 68, 2, 69, 2),
    Sketcher.Constraint("Coincident", 69, 1, 70, 1),
    Sketcher.Constraint("Coincident", 70, 2, 71, 2),
    Sketcher.Constraint("Coincident", 71, 1, 64, 1),
    Sketcher.Constraint("Vertical", 2),
    Sketcher.Constraint("Vertical", 4),
    Sketcher.Constraint("Vertical", 6),
    Sketcher.Constraint("Vertical", 8),
    Sketcher.Constraint("Vertical", 11),
    Sketcher.Constraint("Vertical", 13),
    Sketcher.Constraint("Vertical", 15),
    Sketcher.Constraint("Vertical", 17),
    Sketcher.Constraint("Vertical", 20),
    Sketcher.Constraint("Vertical", 22),
    Sketcher.Constraint("Vertical", 24),
    Sketcher.Constraint("Vertical", 26),
    Sketcher.Constraint("Vertical", 28),
    Sketcher.Constraint("Vertical", 30),
    Sketcher.Constraint("Vertical", 32),
    Sketcher.Constraint("Vertical", 34),
    Sketcher.Constraint("Vertical", 38),
    Sketcher.Constraint("Vertical", 40),
    Sketcher.Constraint("Vertical", 42),
    Sketcher.Constraint("Vertical", 44),
    Sketcher.Constraint("Vertical", 46),
    Sketcher.Constraint("Vertical", 48),
    Sketcher.Constraint("Vertical", 50),
    Sketcher.Constraint("Vertical", 52),
    Sketcher.Constraint("Vertical", 55),
    Sketcher.Constraint("Vertical", 57),
    Sketcher.Constraint("Vertical", 59),
    Sketcher.Constraint("Vertical", 61),
    Sketcher.Constraint("Vertical", 64),
    Sketcher.Constraint("Vertical", 66),
    Sketcher.Constraint("Vertical", 68),
    Sketcher.Constraint("Vertical", 70),
    Sketcher.Constraint("Coincident", 0, 3, -1, 1),
    Sketcher.Constraint("Coincident", 1, 3, -1, 1),
    Sketcher.Constraint("Coincident", 3, 3, -1, 1),
    Sketcher.Constraint("Coincident", 5, 3, -1, 1),
    Sketcher.Constraint("Coincident", 7, 3, -1, 1),
    Sketcher.Constraint("Coincident", 10, 3, 9, 3),
    Sketcher.Constraint("Coincident", 12, 3, 9, 3),
    Sketcher.Constraint("Coincident", 14, 3, 9, 3),
    Sketcher.Constraint("Coincident", 16, 3, 9, 3),
    Sketcher.Constraint("Coincident", 19, 3, 18, 3),
    Sketcher.Constraint("Coincident", 21, 3, 18, 3),
    Sketcher.Constraint("Coincident", 23, 3, 18, 3),
    Sketcher.Constraint("Coincident", 25, 3, 18, 3),
    Sketcher.Constraint("Coincident", 29, 3, 27, 3),
    Sketcher.Constraint("Coincident", 31, 3, 27, 3),
    Sketcher.Constraint("Coincident", 33, 3, 27, 3),
    Sketcher.Constraint("Coincident", 35, 3, 27, 3),
    Sketcher.Constraint("Coincident", 37, 3, 36, 3),
    Sketcher.Constraint("Coincident", 39, 3, 36, 3),
    Sketcher.Constraint("Coincident", 41, 3, 36, 3),
    Sketcher.Constraint("Coincident", 43, 3, 36, 3),
    Sketcher.Constraint("Coincident", 47, 3, 45, 3),
    Sketcher.Constraint("Coincident", 49, 3, 45, 3),
    Sketcher.Constraint("Coincident", 51, 3, 45, 3),
    Sketcher.Constraint("Coincident", 53, 3, 45, 3),
    Sketcher.Constraint("Coincident", 56, 3, 54, 3),
    Sketcher.Constraint("Coincident", 58, 3, 54, 3),
    Sketcher.Constraint("Coincident", 60, 3, 54, 3),
    Sketcher.Constraint("Coincident", 62, 3, 54, 3),
    Sketcher.Constraint("Coincident", 65, 3, 63, 3),
    Sketcher.Constraint("Coincident", 67, 3, 63, 3),
    Sketcher.Constraint("Coincident", 69, 3, 63, 3),
    Sketcher.Constraint("Coincident", 71, 3, 63, 3),
    Sketcher.Constraint("Equal", 1, 5),
    Sketcher.Constraint("Equal", 3, 7),
    Sketcher.Constraint("Equal", 0, 9),
    Sketcher.Constraint("Equal", 7, 10),
    Sketcher.Constraint("Equal", 5, 12),
    Sketcher.Constraint("Equal", 10, 14),
    Sketcher.Constraint("Equal", 12, 16),
    Sketcher.Constraint("Equal", 9, 18),
    Sketcher.Constraint("Equal", 14, 19),
    Sketcher.Constraint("Equal", 16, 21),
    Sketcher.Constraint("Equal", 19, 23),
    Sketcher.Constraint("Equal", 21, 25),
    Sketcher.Constraint("Equal", 18, 27),
    Sketcher.Constraint("Equal", 25, 29),
    Sketcher.Constraint("Equal", 23, 31),
    Sketcher.Constraint("Equal", 29, 33),
    Sketcher.Constraint("Equal", 31, 35),
    Sketcher.Constraint("Equal", 27, 36),
    Sketcher.Constraint("Equal", 35, 37),
    Sketcher.Constraint("Equal", 33, 39),
    Sketcher.Constraint("Equal", 37, 41),
    Sketcher.Constraint("Equal", 39, 43),
    Sketcher.Constraint("Equal", 36, 45),
    Sketcher.Constraint("Equal", 43, 47),
    Sketcher.Constraint("Equal", 41, 49),
    Sketcher.Constraint("Equal", 47, 51),
    Sketcher.Constraint("Equal", 49, 53),
    Sketcher.Constraint("Equal", 45, 54),
    Sketcher.Constraint("Equal", 51, 56),
    Sketcher.Constraint("Equal", 53, 58),
    Sketcher.Constraint("Equal", 56, 60),
    Sketcher.Constraint("Equal", 58, 62),
    Sketcher.Constraint("Equal", 54, 63),
    Sketcher.Constraint("Equal", 62, 65),
    Sketcher.Constraint("Equal", 60, 67),
    Sketcher.Constraint("Equal", 65, 69),
    Sketcher.Constraint("Equal", 67, 71),
    Sketcher.Constraint("Symmetric", 11, 2, 12, 1, -2),
    Sketcher.Constraint("Symmetric", 22, 2, 23, 1, -1),
    Sketcher.Constraint("Symmetric", 40, 2, 41, 1, -1),
    Sketcher.Constraint("Symmetric", 57, 2, 58, 1, -1),
    Sketcher.Constraint("Horizontal", 16, 3, 27, 3),
    Sketcher.Constraint("Horizontal", 35, 3, 45, 3),
    Sketcher.Constraint("Horizontal", 53, 3, 63, 3),
    Sketcher.Constraint("Horizontal", 4, 2, 5, 1),
    Sketcher.Constraint("Horizontal", 2, 2, 7, 1),
    Sketcher.Constraint("Horizontal", 15, 2, 16, 1),
    Sketcher.Constraint("Horizontal", 7, 1, 19, 1),
    Sketcher.Constraint("Horizontal", 20, 2, 21, 1),
    Sketcher.Constraint("Horizontal", 6, 2, 23, 1),
    Sketcher.Constraint("Horizontal", 24, 2, 25, 1),
    Sketcher.Constraint("Horizontal", 16, 1, 28, 2),
    Sketcher.Constraint("Horizontal", 28, 2, 29, 1),
    Sketcher.Constraint("Horizontal", 13, 2, 31, 1),
    Sketcher.Constraint("Horizontal", 32, 2, 33, 1),
    Sketcher.Constraint("Horizontal", 22, 2, 37, 1),
    Sketcher.Constraint("Horizontal", 38, 2, 39, 1),
    Sketcher.Constraint("Horizontal", 42, 2, 43, 1),
    Sketcher.Constraint("Horizontal", 29, 1, 46, 2),
    Sketcher.Constraint("Horizontal", 46, 2, 47, 1),
    Sketcher.Constraint("Horizontal", 34, 2, 49, 1),
    Sketcher.Constraint("Horizontal", 50, 2, 51, 1),
    Sketcher.Constraint("Horizontal", 43, 1, 55, 2),
    Sketcher.Constraint("Horizontal", 55, 2, 56, 1),
    Sketcher.Constraint("Horizontal", 59, 2, 60, 1),
    Sketcher.Constraint("Horizontal", 52, 2, 64, 2),
    Sketcher.Constraint("Horizontal", 53, 1, 65, 1),
    Sketcher.Constraint("Horizontal", 66, 2, 67, 1),
    Sketcher.Constraint("Horizontal", 64, 2, 69, 1),
    Sketcher.Constraint("Vertical", 25, 3, 27, 3),
    Sketcher.Constraint("Vertical", 43, 3, 45, 3),
    Sketcher.Constraint("Vertical", 62, 3, 63, 3),
    Sketcher.Constraint("Vertical", 8, 2, 10, 1),
    Sketcher.Constraint("Vertical", 13, 2, 14, 1),
    Sketcher.Constraint("Radius", 3, Q("3.95 mm")),
    Sketcher.Constraint("Radius", 1, Q("10.194 mm")),
    Sketcher.Constraint("Diameter", 0, Q("27.6076 mm")),
    Sketcher.Constraint("DistanceY", 2, 2, 2, 1, Q("7.217 mm")),
    Sketcher.Constraint("DistanceY", 9, 3, -1, 1, Q("33.878 mm")),
    Sketcher.Constraint("DistanceX", 18, 3, -1, 1, Q("36.2628 mm")),
    Sketcher.Constraint("DistanceX", 36, 3, -1, 1, Q("72.5258 mm")),
    Sketcher.Constraint("DistanceX", 54, 3, -1, 1, Q("108.7886 mm")),
])
sketch1.setExpression("Constraints[203]", "Params.sketch1_radius")
pad1 = doc.addObject("PartDesign::Pad", "Pad")
body.addObject(pad1)
pad1.Profile = sketch1
pad1.setExpression("Length", "Params.pad1_length")

# Sketch on XY plane
sketch2 = doc.addObject("Sketcher::SketchObject", "Sketch001")
body.addObject(sketch2)
sketch2.AttachmentSupport = (doc.XY_Plane, [""])
sketch2.MapMode = "FlatFace"
sketch2.addGeometry([
    Part.ArcOfCircle(Part.Circle(App.Vector(0, 0, 0), App.Vector(0, 0, 1), 16.8507), math.radians(0), math.radians(90)),  # 0
    Part.LineSegment(App.Vector(16.8507, 0, 0), App.Vector(16.8507, -33.8779, 0)),  # 1
    Part.ArcOfCircle(Part.Circle(App.Vector(0, -33.8779, 0), App.Vector(0, 0, 1), 16.8507), math.radians(-90), math.radians(0)),  # 2
    Part.LineSegment(App.Vector(0, -50.7286, 0), App.Vector(-108.7886, -50.7286, 0)),  # 3
    Part.ArcOfCircle(Part.Circle(App.Vector(-108.7886, -33.8779, 0), App.Vector(0, 0, 1), 16.8507), math.radians(180), math.radians(270)),  # 4
    Part.LineSegment(App.Vector(-125.6393, -33.8779, 0), App.Vector(-125.6393, 0, 0)),  # 5
    Part.ArcOfCircle(Part.Circle(App.Vector(-108.7886, 0, 0), App.Vector(0, 0, 1), 16.8507), math.radians(90), math.radians(180)),  # 6
    Part.LineSegment(App.Vector(-108.7886, 16.8507, 0), App.Vector(0, 16.8507, 0)),  # 7
    Part.Circle(App.Vector(0, 0, 0), App.Vector(0, 0, 1), 13.8038),  # 8
    Part.Circle(App.Vector(-72.5258, 0, 0), App.Vector(0, 0, 1), 13.8038),  # 9
    Part.Circle(App.Vector(-108.7886, 0, 0), App.Vector(0, 0, 1), 13.8038),  # 10
    Part.Circle(App.Vector(-108.7886, -33.8779, 0), App.Vector(0, 0, 1), 13.8038),  # 11
    Part.Circle(App.Vector(0, -33.8779, 0), App.Vector(0, 0, 1), 13.8038),  # 12
    Part.Circle(App.Vector(-36.2628, -33.8779, 0), App.Vector(0, 0, 1), 13.8038),  # 13
    Part.Circle(App.Vector(-72.5258, -33.8779, 0), App.Vector(0, 0, 1), 13.8038),  # 14
    Part.Circle(App.Vector(-36.2628, 0, 0), App.Vector(0, 0, 1), 13.8038),  # 15
], False)
sketch2.addConstraint([
    Sketcher.Constraint("Tangent", 0, 1, 1, 1),
    Sketcher.Constraint("Tangent", 1, 2, 2, 2),
    Sketcher.Constraint("Tangent", 2, 1, 3, 1),
    Sketcher.Constraint("Tangent", 3, 2, 4, 2),
    Sketcher.Constraint("Tangent", 4, 1, 5, 1),
    Sketcher.Constraint("Tangent", 5, 2, 6, 2),
    Sketcher.Constraint("Tangent", 6, 1, 7, 1),
    Sketcher.Constraint("Tangent", 7, 2, 0, 2),
    Sketcher.Constraint("Vertical", 1),
    Sketcher.Constraint("Horizontal", 3),
    Sketcher.Constraint("Vertical", 5),
    Sketcher.Constraint("Horizontal", 7),
    Sketcher.Constraint("Coincident", 0, 3, -1, 1),
    Sketcher.Constraint("Coincident", 8, 3, -1, 1),
    Sketcher.Constraint("Coincident", 10, 3, 6, 3),
    Sketcher.Constraint("Coincident", 11, 3, 4, 3),
    Sketcher.Constraint("Coincident", 12, 3, 2, 3),
    Sketcher.Constraint("Equal", 0, 2),
    Sketcher.Constraint("Equal", 2, 4),
    Sketcher.Constraint("Equal", 4, 6),
    Sketcher.Constraint("Equal", 8, 9),
    Sketcher.Constraint("Equal", 9, 10),
    Sketcher.Constraint("Equal", 10, 11),
    Sketcher.Constraint("Equal", 11, 12),
    Sketcher.Constraint("Equal", 12, 13),
    Sketcher.Constraint("Equal", 13, 14),
    Sketcher.Constraint("Equal", 14, 15),
    Sketcher.Constraint("PointOnObject", 9, 3, -1),
    Sketcher.Constraint("PointOnObject", 15, 3, -1),
    Sketcher.Constraint("Horizontal", 12, 3, 13, 3),
    Sketcher.Constraint("Horizontal", 13, 3, 14, 3),
    Sketcher.Constraint("Vertical", 9, 3, 14, 3),
    Sketcher.Constraint("Vertical", 13, 3, 15, 3),
    Sketcher.Constraint("Diameter", 8, Q("27.6076 mm")),
    Sketcher.Constraint("Radius", 0, Q("16.8507 mm")),
    Sketcher.Constraint("DistanceY", 1, 2, 1, 1, Q("33.878 mm")),
    Sketcher.Constraint("DistanceX", 3, 2, 3, 1, Q("108.7886 mm")),
    Sketcher.Constraint("DistanceX", 9, 3, 13, 3, Q("36.263 mm")),
    Sketcher.Constraint("DistanceX", 9, 3, -1, 1, Q("72.5258 mm")),
])
pad2 = doc.addObject("PartDesign::Pad", "Pad001")
body.addObject(pad2)
pad2.Profile = sketch2
pad2.setExpression("Length", "Params.pad2_length")

doc.recompute()
